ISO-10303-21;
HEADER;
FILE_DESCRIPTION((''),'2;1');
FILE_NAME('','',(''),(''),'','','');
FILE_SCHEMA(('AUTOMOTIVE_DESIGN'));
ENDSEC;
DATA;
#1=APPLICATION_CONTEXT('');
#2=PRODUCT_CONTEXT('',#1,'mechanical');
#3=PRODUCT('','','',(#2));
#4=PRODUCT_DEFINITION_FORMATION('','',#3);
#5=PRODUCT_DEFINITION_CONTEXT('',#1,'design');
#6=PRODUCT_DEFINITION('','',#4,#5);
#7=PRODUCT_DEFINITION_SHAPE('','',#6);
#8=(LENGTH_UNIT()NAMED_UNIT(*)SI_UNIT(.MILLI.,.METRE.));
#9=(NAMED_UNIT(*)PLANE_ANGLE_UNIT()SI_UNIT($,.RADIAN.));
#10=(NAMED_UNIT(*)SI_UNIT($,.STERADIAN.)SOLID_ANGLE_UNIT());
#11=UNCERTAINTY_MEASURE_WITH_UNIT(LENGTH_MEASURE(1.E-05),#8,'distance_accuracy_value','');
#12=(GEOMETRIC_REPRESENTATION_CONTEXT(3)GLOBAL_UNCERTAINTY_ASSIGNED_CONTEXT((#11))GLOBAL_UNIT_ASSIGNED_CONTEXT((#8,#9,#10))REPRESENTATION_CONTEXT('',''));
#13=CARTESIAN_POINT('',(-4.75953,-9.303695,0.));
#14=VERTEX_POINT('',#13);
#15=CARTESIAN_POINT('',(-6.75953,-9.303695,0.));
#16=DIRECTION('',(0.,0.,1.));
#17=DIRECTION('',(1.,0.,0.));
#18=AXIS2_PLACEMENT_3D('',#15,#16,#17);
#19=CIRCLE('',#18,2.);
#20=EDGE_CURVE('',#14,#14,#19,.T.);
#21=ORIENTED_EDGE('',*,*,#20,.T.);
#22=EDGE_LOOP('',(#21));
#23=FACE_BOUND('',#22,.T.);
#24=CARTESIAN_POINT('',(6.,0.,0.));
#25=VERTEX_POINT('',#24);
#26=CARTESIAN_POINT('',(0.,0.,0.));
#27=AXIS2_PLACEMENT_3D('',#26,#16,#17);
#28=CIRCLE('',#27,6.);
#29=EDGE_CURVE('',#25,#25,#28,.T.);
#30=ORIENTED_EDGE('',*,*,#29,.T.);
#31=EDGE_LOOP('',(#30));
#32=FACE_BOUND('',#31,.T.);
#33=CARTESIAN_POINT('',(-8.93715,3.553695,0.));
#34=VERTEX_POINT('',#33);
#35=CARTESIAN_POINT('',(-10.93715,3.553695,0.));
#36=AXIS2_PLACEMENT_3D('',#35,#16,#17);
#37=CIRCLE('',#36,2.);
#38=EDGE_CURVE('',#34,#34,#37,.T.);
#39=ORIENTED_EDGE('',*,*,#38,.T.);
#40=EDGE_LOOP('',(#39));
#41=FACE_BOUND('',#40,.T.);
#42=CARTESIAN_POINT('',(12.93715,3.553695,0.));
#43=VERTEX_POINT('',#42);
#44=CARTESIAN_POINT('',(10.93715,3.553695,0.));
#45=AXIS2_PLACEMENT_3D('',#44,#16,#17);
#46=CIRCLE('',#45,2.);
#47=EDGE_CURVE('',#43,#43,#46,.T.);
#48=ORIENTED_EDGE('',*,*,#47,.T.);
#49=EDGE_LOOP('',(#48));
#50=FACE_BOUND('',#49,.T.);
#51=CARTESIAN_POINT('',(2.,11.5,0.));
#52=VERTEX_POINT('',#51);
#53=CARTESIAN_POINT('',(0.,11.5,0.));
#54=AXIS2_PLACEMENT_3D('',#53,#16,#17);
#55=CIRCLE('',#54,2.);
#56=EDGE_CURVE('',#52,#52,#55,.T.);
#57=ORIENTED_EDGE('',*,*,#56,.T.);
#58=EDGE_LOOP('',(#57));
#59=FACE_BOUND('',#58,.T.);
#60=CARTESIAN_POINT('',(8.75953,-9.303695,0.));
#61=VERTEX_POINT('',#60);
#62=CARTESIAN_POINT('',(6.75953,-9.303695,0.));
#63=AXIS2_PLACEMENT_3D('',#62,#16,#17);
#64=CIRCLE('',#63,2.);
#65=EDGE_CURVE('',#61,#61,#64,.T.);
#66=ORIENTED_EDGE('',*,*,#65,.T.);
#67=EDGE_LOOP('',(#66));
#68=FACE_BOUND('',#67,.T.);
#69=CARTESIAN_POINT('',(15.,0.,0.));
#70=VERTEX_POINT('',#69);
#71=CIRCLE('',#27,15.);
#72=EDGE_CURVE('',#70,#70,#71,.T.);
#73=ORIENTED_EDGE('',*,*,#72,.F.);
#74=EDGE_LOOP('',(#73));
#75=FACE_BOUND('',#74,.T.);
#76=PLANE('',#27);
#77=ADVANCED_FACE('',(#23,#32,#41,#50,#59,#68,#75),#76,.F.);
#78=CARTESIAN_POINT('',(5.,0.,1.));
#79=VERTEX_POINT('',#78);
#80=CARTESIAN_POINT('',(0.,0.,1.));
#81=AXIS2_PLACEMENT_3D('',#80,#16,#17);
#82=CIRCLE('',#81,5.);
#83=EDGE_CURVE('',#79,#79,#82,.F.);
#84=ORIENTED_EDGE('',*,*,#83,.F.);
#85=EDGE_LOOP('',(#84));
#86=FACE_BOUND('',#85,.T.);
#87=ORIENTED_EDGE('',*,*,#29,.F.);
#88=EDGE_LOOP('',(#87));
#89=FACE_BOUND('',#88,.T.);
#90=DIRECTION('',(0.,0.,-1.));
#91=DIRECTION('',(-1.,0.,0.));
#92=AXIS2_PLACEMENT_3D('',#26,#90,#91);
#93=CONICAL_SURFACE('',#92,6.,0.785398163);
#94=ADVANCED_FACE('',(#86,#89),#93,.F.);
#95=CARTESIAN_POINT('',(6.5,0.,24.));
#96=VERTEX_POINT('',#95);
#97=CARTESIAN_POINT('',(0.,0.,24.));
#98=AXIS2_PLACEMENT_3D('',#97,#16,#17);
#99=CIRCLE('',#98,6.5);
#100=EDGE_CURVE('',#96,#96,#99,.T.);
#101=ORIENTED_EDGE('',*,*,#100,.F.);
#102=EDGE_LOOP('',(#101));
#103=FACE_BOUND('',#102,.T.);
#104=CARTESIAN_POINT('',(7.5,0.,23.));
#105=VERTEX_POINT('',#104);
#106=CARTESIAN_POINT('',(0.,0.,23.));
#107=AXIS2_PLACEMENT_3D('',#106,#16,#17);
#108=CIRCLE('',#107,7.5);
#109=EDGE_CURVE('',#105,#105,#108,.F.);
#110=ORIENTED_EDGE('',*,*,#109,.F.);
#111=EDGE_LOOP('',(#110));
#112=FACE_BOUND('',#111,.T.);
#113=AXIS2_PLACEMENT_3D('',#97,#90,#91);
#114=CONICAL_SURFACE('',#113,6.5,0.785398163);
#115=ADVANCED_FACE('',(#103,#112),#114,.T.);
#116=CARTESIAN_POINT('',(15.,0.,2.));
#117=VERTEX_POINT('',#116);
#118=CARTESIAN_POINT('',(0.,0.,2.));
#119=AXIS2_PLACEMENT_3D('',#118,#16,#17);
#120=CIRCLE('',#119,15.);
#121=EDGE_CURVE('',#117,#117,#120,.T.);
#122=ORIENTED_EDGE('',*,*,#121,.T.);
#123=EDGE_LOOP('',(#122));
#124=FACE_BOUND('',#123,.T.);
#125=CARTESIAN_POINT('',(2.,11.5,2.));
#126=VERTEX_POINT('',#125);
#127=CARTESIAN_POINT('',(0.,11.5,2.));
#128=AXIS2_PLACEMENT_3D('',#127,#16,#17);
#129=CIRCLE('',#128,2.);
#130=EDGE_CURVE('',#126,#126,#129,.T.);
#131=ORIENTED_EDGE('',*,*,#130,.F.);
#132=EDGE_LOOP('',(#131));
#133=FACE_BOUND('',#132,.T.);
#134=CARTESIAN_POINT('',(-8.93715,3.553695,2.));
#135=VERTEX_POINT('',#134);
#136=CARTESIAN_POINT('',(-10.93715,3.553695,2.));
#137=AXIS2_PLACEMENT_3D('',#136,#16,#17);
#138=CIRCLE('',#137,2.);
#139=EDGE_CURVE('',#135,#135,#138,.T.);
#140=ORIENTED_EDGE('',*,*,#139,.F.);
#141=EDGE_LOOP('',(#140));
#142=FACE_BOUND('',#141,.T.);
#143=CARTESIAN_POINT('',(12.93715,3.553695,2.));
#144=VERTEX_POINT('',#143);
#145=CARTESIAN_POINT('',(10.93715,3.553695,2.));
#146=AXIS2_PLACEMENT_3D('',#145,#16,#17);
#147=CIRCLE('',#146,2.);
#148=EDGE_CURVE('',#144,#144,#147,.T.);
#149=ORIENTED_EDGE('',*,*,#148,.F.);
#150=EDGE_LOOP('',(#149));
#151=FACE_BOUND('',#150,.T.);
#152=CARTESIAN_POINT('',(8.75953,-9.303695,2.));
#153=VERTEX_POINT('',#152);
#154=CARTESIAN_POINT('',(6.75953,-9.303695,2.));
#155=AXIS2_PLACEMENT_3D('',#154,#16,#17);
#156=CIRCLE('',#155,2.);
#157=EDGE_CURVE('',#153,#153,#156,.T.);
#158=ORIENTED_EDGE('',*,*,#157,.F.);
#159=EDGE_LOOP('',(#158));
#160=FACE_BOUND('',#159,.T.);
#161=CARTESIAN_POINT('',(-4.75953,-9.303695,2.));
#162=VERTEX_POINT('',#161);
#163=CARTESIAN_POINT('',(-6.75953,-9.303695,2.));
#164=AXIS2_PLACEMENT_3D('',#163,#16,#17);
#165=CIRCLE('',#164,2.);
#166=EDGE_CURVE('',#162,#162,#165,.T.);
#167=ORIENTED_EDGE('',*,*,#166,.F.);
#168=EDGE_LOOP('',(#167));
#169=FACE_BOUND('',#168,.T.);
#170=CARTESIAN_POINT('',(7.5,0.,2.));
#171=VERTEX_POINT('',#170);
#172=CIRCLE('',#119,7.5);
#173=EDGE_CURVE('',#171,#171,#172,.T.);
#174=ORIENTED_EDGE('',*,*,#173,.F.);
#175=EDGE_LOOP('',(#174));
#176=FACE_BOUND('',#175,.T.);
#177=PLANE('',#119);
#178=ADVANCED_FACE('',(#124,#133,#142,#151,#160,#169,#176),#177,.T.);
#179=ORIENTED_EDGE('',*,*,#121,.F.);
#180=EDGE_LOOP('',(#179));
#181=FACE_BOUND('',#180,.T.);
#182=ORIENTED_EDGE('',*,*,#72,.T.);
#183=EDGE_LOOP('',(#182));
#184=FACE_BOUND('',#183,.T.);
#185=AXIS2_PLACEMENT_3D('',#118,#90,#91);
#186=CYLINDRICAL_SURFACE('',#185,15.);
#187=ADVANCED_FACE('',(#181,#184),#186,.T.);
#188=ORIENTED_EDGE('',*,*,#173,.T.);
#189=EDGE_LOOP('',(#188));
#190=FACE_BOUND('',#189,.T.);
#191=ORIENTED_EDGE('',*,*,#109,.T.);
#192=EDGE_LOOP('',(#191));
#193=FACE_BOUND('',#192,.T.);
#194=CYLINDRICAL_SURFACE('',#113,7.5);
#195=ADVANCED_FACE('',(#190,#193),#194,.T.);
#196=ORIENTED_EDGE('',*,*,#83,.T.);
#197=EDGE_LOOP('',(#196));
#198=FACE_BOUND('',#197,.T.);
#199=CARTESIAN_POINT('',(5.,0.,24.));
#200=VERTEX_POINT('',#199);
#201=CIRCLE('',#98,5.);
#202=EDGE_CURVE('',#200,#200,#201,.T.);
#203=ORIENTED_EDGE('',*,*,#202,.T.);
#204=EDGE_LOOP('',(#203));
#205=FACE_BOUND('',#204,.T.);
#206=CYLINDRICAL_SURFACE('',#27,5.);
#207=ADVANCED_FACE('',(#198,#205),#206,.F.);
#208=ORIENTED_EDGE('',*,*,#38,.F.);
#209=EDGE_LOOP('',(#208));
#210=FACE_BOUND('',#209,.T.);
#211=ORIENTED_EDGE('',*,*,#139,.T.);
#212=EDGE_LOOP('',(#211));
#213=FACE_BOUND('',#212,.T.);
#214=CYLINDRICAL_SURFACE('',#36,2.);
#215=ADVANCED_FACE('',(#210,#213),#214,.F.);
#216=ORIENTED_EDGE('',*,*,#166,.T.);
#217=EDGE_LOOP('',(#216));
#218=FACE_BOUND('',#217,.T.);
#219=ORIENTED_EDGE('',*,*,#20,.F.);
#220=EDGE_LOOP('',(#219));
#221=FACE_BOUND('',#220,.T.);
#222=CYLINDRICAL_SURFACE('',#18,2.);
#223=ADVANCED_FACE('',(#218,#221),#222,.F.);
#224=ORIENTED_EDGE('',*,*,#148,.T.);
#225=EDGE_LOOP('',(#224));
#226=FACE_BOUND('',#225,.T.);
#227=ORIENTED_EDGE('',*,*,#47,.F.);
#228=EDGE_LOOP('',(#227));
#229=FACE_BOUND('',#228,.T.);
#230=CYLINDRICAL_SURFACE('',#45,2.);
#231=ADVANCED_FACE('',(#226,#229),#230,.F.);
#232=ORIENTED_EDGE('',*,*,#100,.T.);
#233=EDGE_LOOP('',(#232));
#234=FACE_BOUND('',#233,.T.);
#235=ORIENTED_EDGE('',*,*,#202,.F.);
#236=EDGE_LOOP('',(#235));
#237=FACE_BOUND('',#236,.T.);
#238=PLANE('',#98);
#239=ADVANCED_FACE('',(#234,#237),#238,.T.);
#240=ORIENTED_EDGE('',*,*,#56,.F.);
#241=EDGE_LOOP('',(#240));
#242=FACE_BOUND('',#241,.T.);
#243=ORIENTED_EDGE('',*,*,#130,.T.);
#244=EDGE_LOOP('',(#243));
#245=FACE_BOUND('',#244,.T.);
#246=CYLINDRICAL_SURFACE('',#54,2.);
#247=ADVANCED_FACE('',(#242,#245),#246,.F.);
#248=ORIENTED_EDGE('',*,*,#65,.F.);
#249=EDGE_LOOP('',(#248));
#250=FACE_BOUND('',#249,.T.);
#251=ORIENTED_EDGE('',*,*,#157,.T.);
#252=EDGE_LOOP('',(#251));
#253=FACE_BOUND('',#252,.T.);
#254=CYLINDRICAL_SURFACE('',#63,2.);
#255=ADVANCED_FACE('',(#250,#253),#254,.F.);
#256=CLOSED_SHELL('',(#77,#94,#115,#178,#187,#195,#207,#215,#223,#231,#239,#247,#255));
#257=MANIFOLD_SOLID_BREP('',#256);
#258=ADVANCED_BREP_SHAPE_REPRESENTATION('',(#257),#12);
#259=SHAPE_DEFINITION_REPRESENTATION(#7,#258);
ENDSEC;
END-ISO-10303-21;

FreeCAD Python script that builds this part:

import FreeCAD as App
import Part
import Sketcher

V = App.Vector
Q = App.Units.Quantity


def edges_at(feature, points):
    """Names of the edges that pass closest to the given points."""
    edges = feature.Shape.Edges
    near = lambda p: min(range(len(edges)), key=lambda i: edges[i].distToShape(Part.Vertex(*p))[0])
    return sorted({f"Edge{near(p) + 1}" for p in points})

doc = App.newDocument("Part")
body = doc.addObject("PartDesign::Body", "Body")

# Sketch on XY plane
sketch1 = doc.addObject("Sketcher::SketchObject", "Sketch")
body.addObject(sketch1)
sketch1.AttachmentSupport = (doc.XY_Plane, [""])
sketch1.MapMode = "FlatFace"
sketch1.addGeometry(Part.Circle(V(0, 0, 0), V(0, 0, 1), 15), False)
sketch1.addConstraint(Sketcher.Constraint("Coincident", 0, 3, -1, 1))
sketch1.addConstraint(Sketcher.Constraint("Diameter", 0, Q("30 mm")))
pad1 = doc.addObject("PartDesign::Pad", "Pad")
body.addObject(pad1)
pad1.Profile = sketch1
pad1.Length = 2

# Sketch on XY plane
sketch2 = doc.addObject("Sketcher::SketchObject", "Sketch001")
body.addObject(sketch2)
sketch2.AttachmentSupport = (doc.XY_Plane, [""])
sketch2.MapMode = "FlatFace"
sketch2.AttachmentOffset = App.Placement(V(0, 0, 2), App.Rotation())
sketch2.addGeometry(Part.Circle(V(0, 0, 0), V(0, 0, 1), 8), False)
sketch2.addConstraint(Sketcher.Constraint("Coincident", 0, 3, -1, 1))
sketch2.addConstraint(Sketcher.Constraint("Diameter", 0, Q("15 mm")))
pad2 = doc.addObject("PartDesign::Pad", "Pad001")
body.addObject(pad2)
pad2.Profile = sketch2
pad2.Length = 22

# Sketch on XY plane
sketch3 = doc.addObject("Sketcher::SketchObject", "Sketch002")
body.addObject(sketch3)
sketch3.AttachmentSupport = (doc.XY_Plane, [""])
sketch3.MapMode = "FlatFace"
sketch3.AttachmentOffset = App.Placement(V(0, 0, 24), App.Rotation())
sketch3.addGeometry(Part.Circle(V(0, 0, 0), V(0, 0, 1), 5), False)
sketch3.addConstraint(Sketcher.Constraint("Coincident", 0, 3, -1, 1))
sketch3.addConstraint(Sketcher.Constraint("Diameter", 0, Q("10 mm")))
pocket1 = doc.addObject("PartDesign::Pocket", "Pocket")
body.addObject(pocket1)
pocket1.Profile = sketch3
pocket1.Type = "ThroughAll"

# Sketch on XY plane
sketch4 = doc.addObject("Sketcher::SketchObject", "Sketch003")
body.addObject(sketch4)
sketch4.AttachmentSupport = (doc.XY_Plane, [""])
sketch4.MapMode = "FlatFace"
sketch4.AttachmentOffset = App.Placement(V(0, 0, 2), App.Rotation())
sketch4.addGeometry(Part.Circle(V(0, 11.5, 0), V(0, 0, 1), 2), False)
sketch4.addGeometry(Part.Circle(V(10.9, 3.6, 0), V(0, 0, 1), 2), False)
sketch4.addGeometry(Part.Circle(V(6.8, -9.3, 0), V(0, 0, 1), 2), False)
sketch4.addGeometry(Part.Circle(V(-6.8, -9.3, 0), V(0, 0, 1), 2), False)
sketch4.addGeometry(Part.Circle(V(-10.9, 3.6, 0), V(0, 0, 1), 2), False)
sketch4.addConstraint(Sketcher.Constraint("Equal", 0, 1))
sketch4.addConstraint(Sketcher.Constraint("Equal", 1, 2))
sketch4.addConstraint(Sketcher.Constraint("Equal", 2, 3))
sketch4.addConstraint(Sketcher.Constraint("Equal", 3, 4))
sketch4.addConstraint(Sketcher.Constraint("Symmetric", 2, 3, 3, 3, -2))
sketch4.addConstraint(Sketcher.Constraint("Symmetric", 1, 3, 4, 3, -2))
sketch4.addConstraint(Sketcher.Constraint("PointOnObject", 0, 3, -2))
sketch4.addConstraint(Sketcher.Constraint("Diameter", 0, Q("4 mm")))
sketch4.addConstraint(Sketcher.Constraint("DistanceY", -1, 1, 0, 3, Q("11.5 mm")))
sketch4.addConstraint(Sketcher.Constraint("DistanceX", 4, 3, 1, 3, Q("21.8743 mm")))
sketch4.addConstraint(Sketcher.Constraint("DistanceX", -1, 1, 2, 3, Q("6.75953 mm")))
sketch4.addConstraint(Sketcher.Constraint("DistanceY", 2, 3, 1, 3, Q("12.857391 mm")))
sketch4.addConstraint(Sketcher.Constraint("DistanceY", -1, 1, 1, 3, Q("3.553695 mm")))
pocket2 = doc.addObject("PartDesign::Pocket", "Pocket001")
body.addObject(pocket2)
pocket2.Profile = sketch4
pocket2.Type = "ThroughAll"
doc.recompute()

chamfer = doc.addObject("PartDesign::Chamfer", "Chamfer")
body.addObject(chamfer)
chamfer.Base = (pocket2, edges_at(pocket2, [(-5, 0, 0)]))
chamfer.Size = 1
doc.recompute()

chamfer2 = doc.addObject("PartDesign::Chamfer", "Chamfer001")
body.addObject(chamfer2)
chamfer2.Base = (chamfer, edges_at(chamfer, [(-7.5, 0, 24)]))
chamfer2.Size = 1

doc.recompute()
